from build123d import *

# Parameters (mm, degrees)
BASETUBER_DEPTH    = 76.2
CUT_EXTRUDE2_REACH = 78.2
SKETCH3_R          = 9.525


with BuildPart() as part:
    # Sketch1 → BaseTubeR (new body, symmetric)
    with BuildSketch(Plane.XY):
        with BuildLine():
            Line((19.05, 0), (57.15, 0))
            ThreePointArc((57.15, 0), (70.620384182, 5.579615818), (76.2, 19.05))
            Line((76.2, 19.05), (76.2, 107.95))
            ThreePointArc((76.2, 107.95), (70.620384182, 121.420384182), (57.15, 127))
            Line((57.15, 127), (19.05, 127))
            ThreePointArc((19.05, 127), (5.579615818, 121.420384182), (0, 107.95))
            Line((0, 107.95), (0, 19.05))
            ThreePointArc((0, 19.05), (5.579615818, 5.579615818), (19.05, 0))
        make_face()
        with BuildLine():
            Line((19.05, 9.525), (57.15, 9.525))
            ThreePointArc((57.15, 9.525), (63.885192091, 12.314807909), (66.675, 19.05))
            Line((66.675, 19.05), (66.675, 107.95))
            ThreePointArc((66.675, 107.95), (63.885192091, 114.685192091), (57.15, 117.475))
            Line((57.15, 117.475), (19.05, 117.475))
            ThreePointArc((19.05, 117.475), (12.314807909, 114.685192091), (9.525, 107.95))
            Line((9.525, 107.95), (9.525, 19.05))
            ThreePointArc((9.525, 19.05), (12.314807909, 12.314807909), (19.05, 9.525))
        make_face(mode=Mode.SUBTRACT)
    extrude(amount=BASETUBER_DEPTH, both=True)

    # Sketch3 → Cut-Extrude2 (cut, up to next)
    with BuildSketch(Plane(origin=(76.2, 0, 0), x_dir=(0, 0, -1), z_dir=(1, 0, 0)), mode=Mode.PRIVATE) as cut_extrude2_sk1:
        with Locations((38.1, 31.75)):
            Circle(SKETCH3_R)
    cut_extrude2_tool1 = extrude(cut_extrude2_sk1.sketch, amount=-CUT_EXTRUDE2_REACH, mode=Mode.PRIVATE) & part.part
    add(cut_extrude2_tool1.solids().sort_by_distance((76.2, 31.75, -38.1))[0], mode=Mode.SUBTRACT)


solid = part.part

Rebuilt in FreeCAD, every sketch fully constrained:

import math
import FreeCAD as App
import Part
import Sketcher
from FreeCAD import Vector
Q = App.Units.Quantity

doc = App.newDocument("Part")
body = doc.addObject("PartDesign::Body", "Body")

# Sketch on XY plane
sketch1 = body.newObject("Sketcher::SketchObject", "Sketch")
sketch1.AttachmentSupport = (doc.getObject("XY_Plane"), [""])
sketch1.MapMode = "FlatFace"
sketch1.addGeometry(Part.LineSegment(Vector(19, 0, 0), Vector(57, 0, 0)), False)
sketch1.addGeometry(Part.ArcOfCircle(Part.Circle(Vector(57, 19, 0), Vector(0, 0, 1), 19), math.radians(-90), math.radians(0)), False)
sketch1.addGeometry(Part.LineSegment(Vector(76, 19, 0), Vector(76, 108, 0)), False)
sketch1.addGeometry(Part.ArcOfCircle(Part.Circle(Vector(57, 108, 0), Vector(0, 0, 1), 19), math.radians(0), math.radians(90)), False)
sketch1.addGeometry(Part.LineSegment(Vector(57, 127, 0), Vector(19, 127, 0)), False)
sketch1.addGeometry(Part.ArcOfCircle(Part.Circle(Vector(19, 108, 0), Vector(0, 0, 1), 19), math.radians(90), math.radians(180)), False)
sketch1.addGeometry(Part.LineSegment(Vector(0, 108, 0), Vector(0, 19, 0)), False)
sketch1.addGeometry(Part.ArcOfCircle(Part.Circle(Vector(19, 19, 0), Vector(0, 0, 1), 19), math.radians(180), math.radians(270)), False)
sketch1.addGeometry(Part.LineSegment(Vector(57, 10, 0), Vector(19, 10, 0)), False)
sketch1.addGeometry(Part.ArcOfCircle(Part.Circle(Vector(19, 19, 0), Vector(0, 0, 1), 10), math.radians(180), math.radians(270)), False)
sketch1.addGeometry(Part.LineSegment(Vector(10, 19, 0), Vector(10, 108, 0)), False)
sketch1.addGeometry(Part.ArcOfCircle(Part.Circle(Vector(19, 108, 0), Vector(0, 0, 1), 10), math.radians(90), math.radians(180)), False)
sketch1.addGeometry(Part.LineSegment(Vector(19, 117, 0), Vector(57, 117, 0)), False)
sketch1.addGeometry(Part.ArcOfCircle(Part.Circle(Vector(57, 108, 0), Vector(0, 0, 1), 10), math.radians(0), math.radians(90)), False)
sketch1.addGeometry(Part.LineSegment(Vector(67, 108, 0), Vector(67, 19, 0)), False)
sketch1.addGeometry(Part.ArcOfCircle(Part.Circle(Vector(57, 19, 0), Vector(0, 0, 1), 10), math.radians(-90), math.radians(0)), False)
sketch1.addConstraint(Sketcher.Constraint("Tangent", 0, 2, 1, 1))
sketch1.addConstraint(Sketcher.Constraint("Tangent", 1, 2, 2, 1))
sketch1.addConstraint(Sketcher.Constraint("Tangent", 2, 2, 3, 1))
sketch1.addConstraint(Sketcher.Constraint("Tangent", 3, 2, 4, 1))
sketch1.addConstraint(Sketcher.Constraint("Tangent", 4, 2, 5, 1))
sketch1.addConstraint(Sketcher.Constraint("Tangent", 5, 2, 6, 1))
sketch1.addConstraint(Sketcher.Constraint("Tangent", 6, 2, 7, 1))
sketch1.addConstraint(Sketcher.Constraint("Tangent", 7, 2, 0, 1))
sketch1.addConstraint(Sketcher.Constraint("Tangent", 8, 2, 9, 2))
sketch1.addConstraint(Sketcher.Constraint("Tangent", 9, 1, 10, 1))
sketch1.addConstraint(Sketcher.Constraint("Tangent", 10, 2, 11, 2))
sketch1.addConstraint(Sketcher.Constraint("Tangent", 11, 1, 12, 1))
sketch1.addConstraint(Sketcher.Constraint("Tangent", 12, 2, 13, 2))
sketch1.addConstraint(Sketcher.Constraint("Tangent", 13, 1, 14, 1))
sketch1.addConstraint(Sketcher.Constraint("Tangent", 14, 2, 15, 2))
sketch1.addConstraint(Sketcher.Constraint("Tangent", 15, 1, 8, 1))
sketch1.addConstraint(Sketcher.Constraint("Horizontal", 0))
sketch1.addConstraint(Sketcher.Constraint("Vertical", 2))
sketch1.addConstraint(Sketcher.Constraint("Horizontal", 4))
sketch1.addConstraint(Sketcher.Constraint("Vertical", 6))
sketch1.addConstraint(Sketcher.Constraint("Horizontal", 8))
sketch1.addConstraint(Sketcher.Constraint("Vertical", 10))
sketch1.addConstraint(Sketcher.Constraint("Horizontal", 12))
sketch1.addConstraint(Sketcher.Constraint("Vertical", 14))
sketch1.addConstraint(Sketcher.Constraint("Coincident", 9, 3, 7, 3))
sketch1.addConstraint(Sketcher.Constraint("Coincident", 11, 3, 5, 3))
sketch1.addConstraint(Sketcher.Constraint("Coincident", 13, 3, 3, 3))
sketch1.addConstraint(Sketcher.Constraint("Equal", 1, 3))
sketch1.addConstraint(Sketcher.Constraint("Equal", 3, 5))
sketch1.addConstraint(Sketcher.Constraint("Equal", 5, 7))
sketch1.addConstraint(Sketcher.Constraint("Equal", 13, 15))
sketch1.addConstraint(Sketcher.Constraint("PointOnObject", 0, 2, -1))
sketch1.addConstraint(Sketcher.Constraint("PointOnObject", 5, 2, -2))
sketch1.addConstraint(Sketcher.Constraint("Radius", 1, Q("0.75 in")))
sketch1.addConstraint(Sketcher.Constraint("DistanceX", 0, 1, 0, 2, Q("1.5 in")))
sketch1.addConstraint(Sketcher.Constraint("DistanceY", 2, 1, 2, 2, Q("3.5 in")))
sketch1.addConstraint(Sketcher.Constraint("Radius", 9, Q("0.375 in")))
pad1 = body.newObject("PartDesign::Pad", "Pad")
pad1.Profile = sketch1
pad1.Length = Q("6 in")
pad1.Midplane = True

# Sketch on YZ plane
sketch2 = body.newObject("Sketcher::SketchObject", "Sketch001")
sketch2.AttachmentSupport = (doc.getObject("YZ_Plane"), [""])
sketch2.MapMode = "FlatFace"
sketch2.AttachmentOffset = App.Placement(Vector(0, 0, 3 * 25.4), App.Rotation())
sketch2.addGeometry(Part.Circle(Vector(32, -38, 0), Vector(0, 0, 1), 10), False)
sketch2.addConstraint(Sketcher.Constraint("Diameter", 0, Q("0.75 in")))
sketch2.addConstraint(Sketcher.Constraint("DistanceY", 0, 3, -1, 1, Q("1.5 in")))
sketch2.addConstraint(Sketcher.Constraint("DistanceX", -1, 1, 0, 3, Q("1.25 in")))
pocket1 = body.newObject("PartDesign::Pocket", "Pocket")
pocket1.Profile = sketch2
pocket1.Type = "UpToFirst"

doc.recompute()
